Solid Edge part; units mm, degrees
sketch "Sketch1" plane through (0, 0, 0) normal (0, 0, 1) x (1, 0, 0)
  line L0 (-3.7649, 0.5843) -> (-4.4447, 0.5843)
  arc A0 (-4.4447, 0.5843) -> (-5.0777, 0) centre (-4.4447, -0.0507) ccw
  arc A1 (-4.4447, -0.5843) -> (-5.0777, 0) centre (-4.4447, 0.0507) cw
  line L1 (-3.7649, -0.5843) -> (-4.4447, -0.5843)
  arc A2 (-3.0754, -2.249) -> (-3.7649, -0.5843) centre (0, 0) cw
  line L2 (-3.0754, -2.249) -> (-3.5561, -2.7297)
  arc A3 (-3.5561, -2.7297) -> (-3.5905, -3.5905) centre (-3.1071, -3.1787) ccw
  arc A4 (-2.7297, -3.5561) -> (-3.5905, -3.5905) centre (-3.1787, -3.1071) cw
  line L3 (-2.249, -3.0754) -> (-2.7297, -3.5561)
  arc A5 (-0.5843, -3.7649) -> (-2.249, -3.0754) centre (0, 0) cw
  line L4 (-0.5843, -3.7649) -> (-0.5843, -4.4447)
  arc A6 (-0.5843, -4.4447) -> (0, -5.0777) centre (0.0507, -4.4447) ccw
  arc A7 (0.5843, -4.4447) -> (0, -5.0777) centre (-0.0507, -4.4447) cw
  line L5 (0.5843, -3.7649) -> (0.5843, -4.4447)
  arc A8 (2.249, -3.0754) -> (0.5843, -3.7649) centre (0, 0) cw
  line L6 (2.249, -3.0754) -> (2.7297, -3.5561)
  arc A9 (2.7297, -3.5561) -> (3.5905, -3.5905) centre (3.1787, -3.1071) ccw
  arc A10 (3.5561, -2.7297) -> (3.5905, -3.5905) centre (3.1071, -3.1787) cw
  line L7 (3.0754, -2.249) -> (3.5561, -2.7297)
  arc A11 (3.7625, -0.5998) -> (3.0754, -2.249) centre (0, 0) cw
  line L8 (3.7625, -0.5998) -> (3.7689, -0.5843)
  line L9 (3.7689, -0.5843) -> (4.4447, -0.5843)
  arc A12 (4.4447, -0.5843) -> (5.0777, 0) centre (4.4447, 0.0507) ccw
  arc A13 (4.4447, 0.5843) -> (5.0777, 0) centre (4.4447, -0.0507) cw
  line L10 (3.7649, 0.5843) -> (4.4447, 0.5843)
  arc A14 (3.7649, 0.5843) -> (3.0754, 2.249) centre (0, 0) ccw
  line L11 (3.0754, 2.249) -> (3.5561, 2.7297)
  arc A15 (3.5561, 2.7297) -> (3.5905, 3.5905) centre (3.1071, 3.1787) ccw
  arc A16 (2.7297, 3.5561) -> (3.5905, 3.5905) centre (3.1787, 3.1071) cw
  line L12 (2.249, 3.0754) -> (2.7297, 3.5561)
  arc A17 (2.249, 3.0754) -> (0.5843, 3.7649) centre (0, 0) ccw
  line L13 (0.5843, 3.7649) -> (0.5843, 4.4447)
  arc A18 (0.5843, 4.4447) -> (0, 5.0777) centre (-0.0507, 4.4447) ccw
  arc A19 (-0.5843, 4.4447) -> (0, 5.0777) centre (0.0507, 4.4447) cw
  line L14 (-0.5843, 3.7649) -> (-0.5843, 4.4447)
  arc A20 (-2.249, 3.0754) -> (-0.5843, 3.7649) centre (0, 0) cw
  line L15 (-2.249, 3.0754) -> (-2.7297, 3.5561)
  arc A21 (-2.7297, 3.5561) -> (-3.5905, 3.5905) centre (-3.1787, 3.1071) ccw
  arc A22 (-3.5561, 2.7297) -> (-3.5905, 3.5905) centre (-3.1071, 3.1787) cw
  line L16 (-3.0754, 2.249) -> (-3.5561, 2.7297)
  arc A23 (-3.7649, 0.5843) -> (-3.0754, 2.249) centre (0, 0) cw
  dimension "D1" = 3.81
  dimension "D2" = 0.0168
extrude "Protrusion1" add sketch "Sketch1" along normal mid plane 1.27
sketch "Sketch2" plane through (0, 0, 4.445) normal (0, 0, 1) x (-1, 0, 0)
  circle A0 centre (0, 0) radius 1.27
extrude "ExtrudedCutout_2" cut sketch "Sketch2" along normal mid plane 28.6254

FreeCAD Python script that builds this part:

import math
import FreeCAD as App
import Part
import Sketcher
Q = App.Units.Quantity

doc = App.newDocument("Part")
body = doc.addObject("PartDesign::Body", "Body")

sketch1 = body.newObject("Sketcher::SketchObject", "Sketch")
sketch1.AttachmentSupport = (doc.getObject("XY_Plane"), [""])
sketch1.MapMode = "FlatFace"
sketch1.addGeometry([
    Part.ArcOfCircle(Part.Circle(App.Vector(0, 0, 0), App.Vector(0, 0, 1), 3.810009), math.radians(143.822481), math.radians(171.178263)),
    Part.LineSegment(App.Vector(-3.7649, 0.5843, 0), App.Vector(-4.4447, 0.5843, 0)),
    Part.ArcOfCircle(Part.Circle(App.Vector(-4.4447, -0.0507, 0), App.Vector(0, 0, 1), 0.635), math.radians(90), math.radians(175.420682)),
    Part.ArcOfCircle(Part.Circle(App.Vector(-4.4447, 0.0507, 0), App.Vector(0, 0, 1), 0.635), math.radians(-175.420682), math.radians(-90)),
    Part.LineSegment(App.Vector(-4.4447, -0.5843, 0), App.Vector(-3.7649, -0.5843, 0)),
    Part.ArcOfCircle(Part.Circle(App.Vector(0, 0, 0), App.Vector(0, 0, 1), 3.809971), math.radians(-171.178263), math.radians(-143.822481)),
    Part.LineSegment(App.Vector(-3.0754, -2.249, 0), App.Vector(-3.5561, -2.7297, 0)),
    Part.ArcOfCircle(Part.Circle(App.Vector(-3.1071, -3.1787, 0), App.Vector(0, 0, 1), 0.634982), math.radians(135), math.radians(220.427096)),
    Part.ArcOfCircle(Part.Circle(App.Vector(-3.1787, -3.1071, 0), App.Vector(0, 0, 1), 0.634982), math.radians(-130.427096), math.radians(-45)),
    Part.LineSegment(App.Vector(-2.7297, -3.5561, 0), App.Vector(-2.249, -3.0754, 0)),
    Part.ArcOfCircle(Part.Circle(App.Vector(0, 0, 0), App.Vector(0, 0, 1), 3.810009), math.radians(-126.177519), math.radians(-98.821737)),
    Part.LineSegment(App.Vector(-0.5843, -3.7649, 0), App.Vector(-0.5843, -4.4447, 0)),
    Part.ArcOfCircle(Part.Circle(App.Vector(0.0507, -4.4447, 0), App.Vector(0, 0, 1), 0.635), math.radians(180), math.radians(265.420682)),
    Part.ArcOfCircle(Part.Circle(App.Vector(-0.0507, -4.4447, 0), App.Vector(0, 0, 1), 0.635), math.radians(-85.420682), math.radians(0)),
    Part.LineSegment(App.Vector(0.5843, -4.4447, 0), App.Vector(0.5843, -3.7649, 0)),
    Part.ArcOfCircle(Part.Circle(App.Vector(0, 0, 0), App.Vector(0, 0, 1), 3.809971), math.radians(-81.178263), math.radians(-53.822481)),
    Part.LineSegment(App.Vector(2.249, -3.0754, 0), App.Vector(2.7297, -3.5561, 0)),
    Part.ArcOfCircle(Part.Circle(App.Vector(3.1787, -3.1071, 0), App.Vector(0, 0, 1), 0.634982), math.radians(-135), math.radians(-49.572904)),
    Part.ArcOfCircle(Part.Circle(App.Vector(3.1071, -3.1787, 0), App.Vector(0, 0, 1), 0.634982), math.radians(-40.427096), math.radians(45)),
    Part.LineSegment(App.Vector(3.5561, -2.7297, 0), App.Vector(3.0754, -2.249, 0)),
    Part.ArcOfCircle(Part.Circle(App.Vector(0, 0, 0), App.Vector(0, 0, 1), 3.809971), math.radians(-36.177519), math.radians(-9.057608)),
    Part.LineSegment(App.Vector(3.7625, -0.5998, 0), App.Vector(3.7689, -0.5843, 0)),
    Part.LineSegment(App.Vector(3.7689, -0.5843, 0), App.Vector(4.4447, -0.5843, 0)),
    Part.ArcOfCircle(Part.Circle(App.Vector(4.4447, 0.0507, 0), App.Vector(0, 0, 1), 0.635), math.radians(-90), math.radians(-4.579318)),
    Part.ArcOfCircle(Part.Circle(App.Vector(4.4447, -0.0507, 0), App.Vector(0, 0, 1), 0.635), math.radians(4.579318), math.radians(90)),
    Part.LineSegment(App.Vector(4.4447, 0.5843, 0), App.Vector(3.7649, 0.5843, 0)),
    Part.ArcOfCircle(Part.Circle(App.Vector(0, 0, 0), App.Vector(0, 0, 1), 3.810009), math.radians(8.821737), math.radians(36.177519)),
    Part.LineSegment(App.Vector(3.0754, 2.249, 0), App.Vector(3.5561, 2.7297, 0)),
    Part.ArcOfCircle(Part.Circle(App.Vector(3.1071, 3.1787, 0), App.Vector(0, 0, 1), 0.634982), math.radians(-45), math.radians(40.427096)),
    Part.ArcOfCircle(Part.Circle(App.Vector(3.1787, 3.1071, 0), App.Vector(0, 0, 1), 0.634982), math.radians(49.572904), math.radians(135)),
    Part.LineSegment(App.Vector(2.7297, 3.5561, 0), App.Vector(2.249, 3.0754, 0)),
    Part.ArcOfCircle(Part.Circle(App.Vector(0, 0, 0), App.Vector(0, 0, 1), 3.809971), math.radians(53.822481), math.radians(81.178263)),
    Part.LineSegment(App.Vector(0.5843, 3.7649, 0), App.Vector(0.5843, 4.4447, 0)),
    Part.ArcOfCircle(Part.Circle(App.Vector(-0.0507, 4.4447, 0), App.Vector(0, 0, 1), 0.635), math.radians(0), math.radians(85.420682)),
    Part.ArcOfCircle(Part.Circle(App.Vector(0.0507, 4.4447, 0), App.Vector(0, 0, 1), 0.635), math.radians(94.579318), math.radians(180)),
    Part.LineSegment(App.Vector(-0.5843, 4.4447, 0), App.Vector(-0.5843, 3.7649, 0)),
    Part.ArcOfCircle(Part.Circle(App.Vector(0, 0, 0), App.Vector(0, 0, 1), 3.809971), math.radians(98.821737), math.radians(126.177519)),
    Part.LineSegment(App.Vector(-2.249, 3.0754, 0), App.Vector(-2.7297, 3.5561, 0)),
    Part.ArcOfCircle(Part.Circle(App.Vector(-3.1787, 3.1071, 0), App.Vector(0, 0, 1), 0.634982), math.radians(45), math.radians(130.427096)),
    Part.ArcOfCircle(Part.Circle(App.Vector(-3.1071, 3.1787, 0), App.Vector(0, 0, 1), 0.634982), math.radians(139.572904), math.radians(225)),
    Part.LineSegment(App.Vector(-3.5561, 2.7297, 0), App.Vector(-3.0754, 2.249, 0)),
], False)
sketch1.addConstraint([
    Sketcher.Constraint("Coincident", 0, 2, 1, 1),
    Sketcher.Constraint("Tangent", 1, 2, 2, 1),
    Sketcher.Constraint("Coincident", 2, 2, 3, 1),
    Sketcher.Constraint("Tangent", 3, 2, 4, 1),
    Sketcher.Constraint("Coincident", 4, 2, 5, 1),
    Sketcher.Constraint("Coincident", 5, 2, 6, 1),
    Sketcher.Constraint("Tangent", 6, 2, 7, 1),
    Sketcher.Constraint("Coincident", 7, 2, 8, 1),
    Sketcher.Constraint("Tangent", 8, 2, 9, 1),
    Sketcher.Constraint("Coincident", 9, 2, 10, 1),
    Sketcher.Constraint("Coincident", 10, 2, 11, 1),
    Sketcher.Constraint("Tangent", 11, 2, 12, 1),
    Sketcher.Constraint("Coincident", 12, 2, 13, 1),
    Sketcher.Constraint("Tangent", 13, 2, 14, 1),
    Sketcher.Constraint("Coincident", 14, 2, 15, 1),
    Sketcher.Constraint("Coincident", 15, 2, 16, 1),
    Sketcher.Constraint("Tangent", 16, 2, 17, 1),
    Sketcher.Constraint("Coincident", 17, 2, 18, 1),
    Sketcher.Constraint("Tangent", 18, 2, 19, 1),
    Sketcher.Constraint("Coincident", 19, 2, 20, 1),
    Sketcher.Constraint("Coincident", 20, 2, 21, 1),
    Sketcher.Constraint("Coincident", 21, 2, 22, 1),
    Sketcher.Constraint("Tangent", 22, 2, 23, 1),
    Sketcher.Constraint("Coincident", 23, 2, 24, 1),
    Sketcher.Constraint("Tangent", 24, 2, 25, 1),
    Sketcher.Constraint("Coincident", 25, 2, 26, 1),
    Sketcher.Constraint("Coincident", 26, 2, 27, 1),
    Sketcher.Constraint("Tangent", 27, 2, 28, 1),
    Sketcher.Constraint("Coincident", 28, 2, 29, 1),
    Sketcher.Constraint("Tangent", 29, 2, 30, 1),
    Sketcher.Constraint("Coincident", 30, 2, 31, 1),
    Sketcher.Constraint("Coincident", 31, 2, 32, 1),
    Sketcher.Constraint("Tangent", 32, 2, 33, 1),
    Sketcher.Constraint("Coincident", 33, 2, 34, 1),
    Sketcher.Constraint("Tangent", 34, 2, 35, 1),
    Sketcher.Constraint("Coincident", 35, 2, 36, 1),
    Sketcher.Constraint("Coincident", 36, 2, 37, 1),
    Sketcher.Constraint("Tangent", 37, 2, 38, 1),
    Sketcher.Constraint("Coincident", 38, 2, 39, 1),
    Sketcher.Constraint("Tangent", 39, 2, 40, 1),
    Sketcher.Constraint("Coincident", 40, 2, 0, 1),
    Sketcher.Constraint("Horizontal", 1),
    Sketcher.Constraint("Horizontal", 4),
    Sketcher.Constraint("Vertical", 11),
    Sketcher.Constraint("Vertical", 14),
    Sketcher.Constraint("Horizontal", 22),
    Sketcher.Constraint("Horizontal", 25),
    Sketcher.Constraint("Vertical", 32),
    Sketcher.Constraint("Vertical", 35),
    Sketcher.Constraint("Coincident", 0, 3, -1, 1),
    Sketcher.Constraint("Coincident", 5, 3, -1, 1),
    Sketcher.Constraint("Coincident", 10, 3, -1, 1),
    Sketcher.Constraint("Coincident", 15, 3, -1, 1),
    Sketcher.Constraint("Coincident", 20, 3, -1, 1),
    Sketcher.Constraint("Coincident", 26, 3, -1, 1),
    Sketcher.Constraint("Coincident", 31, 3, -1, 1),
    Sketcher.Constraint("Coincident", 36, 3, -1, 1),
    Sketcher.Constraint("Equal", 2, 3),
    Sketcher.Constraint("Equal", 0, 5),
    Sketcher.Constraint("Equal", 3, 7),
    Sketcher.Constraint("Equal", 7, 8),
    Sketcher.Constraint("Equal", 5, 10),
    Sketcher.Constraint("Equal", 8, 12),
    Sketcher.Constraint("Equal", 12, 13),
    Sketcher.Constraint("Equal", 10, 15),
    Sketcher.Constraint("Equal", 13, 17),
    Sketcher.Constraint("Equal", 17, 18),
    Sketcher.Constraint("Equal", 15, 20),
    Sketcher.Constraint("Equal", 18, 23),
    Sketcher.Constraint("Equal", 23, 24),
    Sketcher.Constraint("Equal", 20, 26),
    Sketcher.Constraint("Equal", 24, 28),
    Sketcher.Constraint("Equal", 28, 29),
    Sketcher.Constraint("Equal", 26, 31),
    Sketcher.Constraint("Equal", 29, 33),
    Sketcher.Constraint("Equal", 33, 34),
    Sketcher.Constraint("Equal", 31, 36),
    Sketcher.Constraint("Equal", 34, 38),
    Sketcher.Constraint("Equal", 38, 39),
    Sketcher.Constraint("Symmetric", 2, 3, 23, 3, -1, 1),
    Sketcher.Constraint("Symmetric", 3, 3, 24, 3, -1, 1),
    Sketcher.Constraint("Symmetric", 7, 3, 28, 3, -1, 1),
    Sketcher.Constraint("Symmetric", 8, 3, 29, 3, -1, 1),
    Sketcher.Constraint("Symmetric", 12, 3, 33, 3, -1, 1),
    Sketcher.Constraint("Symmetric", 13, 3, 34, 3, -1, 1),
    Sketcher.Constraint("Symmetric", 17, 3, 38, 3, -1, 1),
    Sketcher.Constraint("Symmetric", 18, 3, 39, 3, -1, 1),
    Sketcher.Constraint("Symmetric", 12, 3, 13, 3, -2),
    Sketcher.Constraint("Symmetric", 8, 3, 17, 3, -2),
    Sketcher.Constraint("Symmetric", 7, 3, 18, 3, -2),
    Sketcher.Constraint("Symmetric", 3, 3, 23, 3, -2),
    Sketcher.Constraint("Parallel", 6, 9),
    Sketcher.Constraint("Perpendicular", 9, 16),
    Sketcher.Constraint("Parallel", 16, 19),
    Sketcher.Constraint("Perpendicular", 19, 27),
    Sketcher.Constraint("Parallel", 27, 30),
    Sketcher.Constraint("Perpendicular", 30, 37),
    Sketcher.Constraint("Parallel", 37, 40),
    Sketcher.Constraint("Horizontal", 9, 2, 15, 2),
    Sketcher.Constraint("Equal", 25, 11),
    Sketcher.Constraint("Equal", 6, 9),
    Sketcher.Constraint("Radius", 0, Q("0.15 in")),
    Sketcher.Constraint("Radius", 2, Q("0.025 in")),
    Sketcher.Constraint("DistanceX", 6, 2, -1, 1, Q("0.14 in")),
    Sketcher.Constraint("DistanceY", 8, 2, -1, 1, Q("0.14 in")),
    Sketcher.Constraint("DistanceX", 22, 1, 22, 2, Q("0.0266 in")),
    Sketcher.Constraint("DistanceX", 2, 3, -1, 1, Q("0.175 in")),
    Sketcher.Constraint("DistanceY", 2, 3, -1, 1, Q("0.002 in")),
    Sketcher.Constraint("DistanceX", -1, 1, 12, 3, Q("0.002 in")),
    Sketcher.Constraint("Distance", 6, 0.6798),
    Sketcher.Constraint("Distance", 21, 0.0168),
])
pad1 = body.newObject("PartDesign::Pad", "Pad")
pad1.Profile = sketch1
pad1.Length = Q("0.05 in")
pad1.Midplane = True

sketch2 = body.newObject("Sketcher::SketchObject", "Sketch001")
sketch2.AttachmentSupport = (doc.getObject("XY_Plane"), [""])
sketch2.MapMode = "FlatFace"
sketch2.AttachmentOffset = App.Placement(App.Vector(0, 0, 0.175 * 25.4), App.Rotation())
sketch2.addGeometry(Part.Circle(App.Vector(0, 0, 0), App.Vector(0, 0, 1), 1.27), False)
sketch2.addConstraint([
    Sketcher.Constraint("Coincident", 0, 3, -1, 1),
    Sketcher.Constraint("Diameter", 0, Q("0.1 in")),
])
pocket1 = body.newObject("PartDesign::Pocket", "Pocket")
pocket1.Profile = sketch2
pocket1.Length = 28.6254
pocket1.Midplane = True

doc.recompute()
